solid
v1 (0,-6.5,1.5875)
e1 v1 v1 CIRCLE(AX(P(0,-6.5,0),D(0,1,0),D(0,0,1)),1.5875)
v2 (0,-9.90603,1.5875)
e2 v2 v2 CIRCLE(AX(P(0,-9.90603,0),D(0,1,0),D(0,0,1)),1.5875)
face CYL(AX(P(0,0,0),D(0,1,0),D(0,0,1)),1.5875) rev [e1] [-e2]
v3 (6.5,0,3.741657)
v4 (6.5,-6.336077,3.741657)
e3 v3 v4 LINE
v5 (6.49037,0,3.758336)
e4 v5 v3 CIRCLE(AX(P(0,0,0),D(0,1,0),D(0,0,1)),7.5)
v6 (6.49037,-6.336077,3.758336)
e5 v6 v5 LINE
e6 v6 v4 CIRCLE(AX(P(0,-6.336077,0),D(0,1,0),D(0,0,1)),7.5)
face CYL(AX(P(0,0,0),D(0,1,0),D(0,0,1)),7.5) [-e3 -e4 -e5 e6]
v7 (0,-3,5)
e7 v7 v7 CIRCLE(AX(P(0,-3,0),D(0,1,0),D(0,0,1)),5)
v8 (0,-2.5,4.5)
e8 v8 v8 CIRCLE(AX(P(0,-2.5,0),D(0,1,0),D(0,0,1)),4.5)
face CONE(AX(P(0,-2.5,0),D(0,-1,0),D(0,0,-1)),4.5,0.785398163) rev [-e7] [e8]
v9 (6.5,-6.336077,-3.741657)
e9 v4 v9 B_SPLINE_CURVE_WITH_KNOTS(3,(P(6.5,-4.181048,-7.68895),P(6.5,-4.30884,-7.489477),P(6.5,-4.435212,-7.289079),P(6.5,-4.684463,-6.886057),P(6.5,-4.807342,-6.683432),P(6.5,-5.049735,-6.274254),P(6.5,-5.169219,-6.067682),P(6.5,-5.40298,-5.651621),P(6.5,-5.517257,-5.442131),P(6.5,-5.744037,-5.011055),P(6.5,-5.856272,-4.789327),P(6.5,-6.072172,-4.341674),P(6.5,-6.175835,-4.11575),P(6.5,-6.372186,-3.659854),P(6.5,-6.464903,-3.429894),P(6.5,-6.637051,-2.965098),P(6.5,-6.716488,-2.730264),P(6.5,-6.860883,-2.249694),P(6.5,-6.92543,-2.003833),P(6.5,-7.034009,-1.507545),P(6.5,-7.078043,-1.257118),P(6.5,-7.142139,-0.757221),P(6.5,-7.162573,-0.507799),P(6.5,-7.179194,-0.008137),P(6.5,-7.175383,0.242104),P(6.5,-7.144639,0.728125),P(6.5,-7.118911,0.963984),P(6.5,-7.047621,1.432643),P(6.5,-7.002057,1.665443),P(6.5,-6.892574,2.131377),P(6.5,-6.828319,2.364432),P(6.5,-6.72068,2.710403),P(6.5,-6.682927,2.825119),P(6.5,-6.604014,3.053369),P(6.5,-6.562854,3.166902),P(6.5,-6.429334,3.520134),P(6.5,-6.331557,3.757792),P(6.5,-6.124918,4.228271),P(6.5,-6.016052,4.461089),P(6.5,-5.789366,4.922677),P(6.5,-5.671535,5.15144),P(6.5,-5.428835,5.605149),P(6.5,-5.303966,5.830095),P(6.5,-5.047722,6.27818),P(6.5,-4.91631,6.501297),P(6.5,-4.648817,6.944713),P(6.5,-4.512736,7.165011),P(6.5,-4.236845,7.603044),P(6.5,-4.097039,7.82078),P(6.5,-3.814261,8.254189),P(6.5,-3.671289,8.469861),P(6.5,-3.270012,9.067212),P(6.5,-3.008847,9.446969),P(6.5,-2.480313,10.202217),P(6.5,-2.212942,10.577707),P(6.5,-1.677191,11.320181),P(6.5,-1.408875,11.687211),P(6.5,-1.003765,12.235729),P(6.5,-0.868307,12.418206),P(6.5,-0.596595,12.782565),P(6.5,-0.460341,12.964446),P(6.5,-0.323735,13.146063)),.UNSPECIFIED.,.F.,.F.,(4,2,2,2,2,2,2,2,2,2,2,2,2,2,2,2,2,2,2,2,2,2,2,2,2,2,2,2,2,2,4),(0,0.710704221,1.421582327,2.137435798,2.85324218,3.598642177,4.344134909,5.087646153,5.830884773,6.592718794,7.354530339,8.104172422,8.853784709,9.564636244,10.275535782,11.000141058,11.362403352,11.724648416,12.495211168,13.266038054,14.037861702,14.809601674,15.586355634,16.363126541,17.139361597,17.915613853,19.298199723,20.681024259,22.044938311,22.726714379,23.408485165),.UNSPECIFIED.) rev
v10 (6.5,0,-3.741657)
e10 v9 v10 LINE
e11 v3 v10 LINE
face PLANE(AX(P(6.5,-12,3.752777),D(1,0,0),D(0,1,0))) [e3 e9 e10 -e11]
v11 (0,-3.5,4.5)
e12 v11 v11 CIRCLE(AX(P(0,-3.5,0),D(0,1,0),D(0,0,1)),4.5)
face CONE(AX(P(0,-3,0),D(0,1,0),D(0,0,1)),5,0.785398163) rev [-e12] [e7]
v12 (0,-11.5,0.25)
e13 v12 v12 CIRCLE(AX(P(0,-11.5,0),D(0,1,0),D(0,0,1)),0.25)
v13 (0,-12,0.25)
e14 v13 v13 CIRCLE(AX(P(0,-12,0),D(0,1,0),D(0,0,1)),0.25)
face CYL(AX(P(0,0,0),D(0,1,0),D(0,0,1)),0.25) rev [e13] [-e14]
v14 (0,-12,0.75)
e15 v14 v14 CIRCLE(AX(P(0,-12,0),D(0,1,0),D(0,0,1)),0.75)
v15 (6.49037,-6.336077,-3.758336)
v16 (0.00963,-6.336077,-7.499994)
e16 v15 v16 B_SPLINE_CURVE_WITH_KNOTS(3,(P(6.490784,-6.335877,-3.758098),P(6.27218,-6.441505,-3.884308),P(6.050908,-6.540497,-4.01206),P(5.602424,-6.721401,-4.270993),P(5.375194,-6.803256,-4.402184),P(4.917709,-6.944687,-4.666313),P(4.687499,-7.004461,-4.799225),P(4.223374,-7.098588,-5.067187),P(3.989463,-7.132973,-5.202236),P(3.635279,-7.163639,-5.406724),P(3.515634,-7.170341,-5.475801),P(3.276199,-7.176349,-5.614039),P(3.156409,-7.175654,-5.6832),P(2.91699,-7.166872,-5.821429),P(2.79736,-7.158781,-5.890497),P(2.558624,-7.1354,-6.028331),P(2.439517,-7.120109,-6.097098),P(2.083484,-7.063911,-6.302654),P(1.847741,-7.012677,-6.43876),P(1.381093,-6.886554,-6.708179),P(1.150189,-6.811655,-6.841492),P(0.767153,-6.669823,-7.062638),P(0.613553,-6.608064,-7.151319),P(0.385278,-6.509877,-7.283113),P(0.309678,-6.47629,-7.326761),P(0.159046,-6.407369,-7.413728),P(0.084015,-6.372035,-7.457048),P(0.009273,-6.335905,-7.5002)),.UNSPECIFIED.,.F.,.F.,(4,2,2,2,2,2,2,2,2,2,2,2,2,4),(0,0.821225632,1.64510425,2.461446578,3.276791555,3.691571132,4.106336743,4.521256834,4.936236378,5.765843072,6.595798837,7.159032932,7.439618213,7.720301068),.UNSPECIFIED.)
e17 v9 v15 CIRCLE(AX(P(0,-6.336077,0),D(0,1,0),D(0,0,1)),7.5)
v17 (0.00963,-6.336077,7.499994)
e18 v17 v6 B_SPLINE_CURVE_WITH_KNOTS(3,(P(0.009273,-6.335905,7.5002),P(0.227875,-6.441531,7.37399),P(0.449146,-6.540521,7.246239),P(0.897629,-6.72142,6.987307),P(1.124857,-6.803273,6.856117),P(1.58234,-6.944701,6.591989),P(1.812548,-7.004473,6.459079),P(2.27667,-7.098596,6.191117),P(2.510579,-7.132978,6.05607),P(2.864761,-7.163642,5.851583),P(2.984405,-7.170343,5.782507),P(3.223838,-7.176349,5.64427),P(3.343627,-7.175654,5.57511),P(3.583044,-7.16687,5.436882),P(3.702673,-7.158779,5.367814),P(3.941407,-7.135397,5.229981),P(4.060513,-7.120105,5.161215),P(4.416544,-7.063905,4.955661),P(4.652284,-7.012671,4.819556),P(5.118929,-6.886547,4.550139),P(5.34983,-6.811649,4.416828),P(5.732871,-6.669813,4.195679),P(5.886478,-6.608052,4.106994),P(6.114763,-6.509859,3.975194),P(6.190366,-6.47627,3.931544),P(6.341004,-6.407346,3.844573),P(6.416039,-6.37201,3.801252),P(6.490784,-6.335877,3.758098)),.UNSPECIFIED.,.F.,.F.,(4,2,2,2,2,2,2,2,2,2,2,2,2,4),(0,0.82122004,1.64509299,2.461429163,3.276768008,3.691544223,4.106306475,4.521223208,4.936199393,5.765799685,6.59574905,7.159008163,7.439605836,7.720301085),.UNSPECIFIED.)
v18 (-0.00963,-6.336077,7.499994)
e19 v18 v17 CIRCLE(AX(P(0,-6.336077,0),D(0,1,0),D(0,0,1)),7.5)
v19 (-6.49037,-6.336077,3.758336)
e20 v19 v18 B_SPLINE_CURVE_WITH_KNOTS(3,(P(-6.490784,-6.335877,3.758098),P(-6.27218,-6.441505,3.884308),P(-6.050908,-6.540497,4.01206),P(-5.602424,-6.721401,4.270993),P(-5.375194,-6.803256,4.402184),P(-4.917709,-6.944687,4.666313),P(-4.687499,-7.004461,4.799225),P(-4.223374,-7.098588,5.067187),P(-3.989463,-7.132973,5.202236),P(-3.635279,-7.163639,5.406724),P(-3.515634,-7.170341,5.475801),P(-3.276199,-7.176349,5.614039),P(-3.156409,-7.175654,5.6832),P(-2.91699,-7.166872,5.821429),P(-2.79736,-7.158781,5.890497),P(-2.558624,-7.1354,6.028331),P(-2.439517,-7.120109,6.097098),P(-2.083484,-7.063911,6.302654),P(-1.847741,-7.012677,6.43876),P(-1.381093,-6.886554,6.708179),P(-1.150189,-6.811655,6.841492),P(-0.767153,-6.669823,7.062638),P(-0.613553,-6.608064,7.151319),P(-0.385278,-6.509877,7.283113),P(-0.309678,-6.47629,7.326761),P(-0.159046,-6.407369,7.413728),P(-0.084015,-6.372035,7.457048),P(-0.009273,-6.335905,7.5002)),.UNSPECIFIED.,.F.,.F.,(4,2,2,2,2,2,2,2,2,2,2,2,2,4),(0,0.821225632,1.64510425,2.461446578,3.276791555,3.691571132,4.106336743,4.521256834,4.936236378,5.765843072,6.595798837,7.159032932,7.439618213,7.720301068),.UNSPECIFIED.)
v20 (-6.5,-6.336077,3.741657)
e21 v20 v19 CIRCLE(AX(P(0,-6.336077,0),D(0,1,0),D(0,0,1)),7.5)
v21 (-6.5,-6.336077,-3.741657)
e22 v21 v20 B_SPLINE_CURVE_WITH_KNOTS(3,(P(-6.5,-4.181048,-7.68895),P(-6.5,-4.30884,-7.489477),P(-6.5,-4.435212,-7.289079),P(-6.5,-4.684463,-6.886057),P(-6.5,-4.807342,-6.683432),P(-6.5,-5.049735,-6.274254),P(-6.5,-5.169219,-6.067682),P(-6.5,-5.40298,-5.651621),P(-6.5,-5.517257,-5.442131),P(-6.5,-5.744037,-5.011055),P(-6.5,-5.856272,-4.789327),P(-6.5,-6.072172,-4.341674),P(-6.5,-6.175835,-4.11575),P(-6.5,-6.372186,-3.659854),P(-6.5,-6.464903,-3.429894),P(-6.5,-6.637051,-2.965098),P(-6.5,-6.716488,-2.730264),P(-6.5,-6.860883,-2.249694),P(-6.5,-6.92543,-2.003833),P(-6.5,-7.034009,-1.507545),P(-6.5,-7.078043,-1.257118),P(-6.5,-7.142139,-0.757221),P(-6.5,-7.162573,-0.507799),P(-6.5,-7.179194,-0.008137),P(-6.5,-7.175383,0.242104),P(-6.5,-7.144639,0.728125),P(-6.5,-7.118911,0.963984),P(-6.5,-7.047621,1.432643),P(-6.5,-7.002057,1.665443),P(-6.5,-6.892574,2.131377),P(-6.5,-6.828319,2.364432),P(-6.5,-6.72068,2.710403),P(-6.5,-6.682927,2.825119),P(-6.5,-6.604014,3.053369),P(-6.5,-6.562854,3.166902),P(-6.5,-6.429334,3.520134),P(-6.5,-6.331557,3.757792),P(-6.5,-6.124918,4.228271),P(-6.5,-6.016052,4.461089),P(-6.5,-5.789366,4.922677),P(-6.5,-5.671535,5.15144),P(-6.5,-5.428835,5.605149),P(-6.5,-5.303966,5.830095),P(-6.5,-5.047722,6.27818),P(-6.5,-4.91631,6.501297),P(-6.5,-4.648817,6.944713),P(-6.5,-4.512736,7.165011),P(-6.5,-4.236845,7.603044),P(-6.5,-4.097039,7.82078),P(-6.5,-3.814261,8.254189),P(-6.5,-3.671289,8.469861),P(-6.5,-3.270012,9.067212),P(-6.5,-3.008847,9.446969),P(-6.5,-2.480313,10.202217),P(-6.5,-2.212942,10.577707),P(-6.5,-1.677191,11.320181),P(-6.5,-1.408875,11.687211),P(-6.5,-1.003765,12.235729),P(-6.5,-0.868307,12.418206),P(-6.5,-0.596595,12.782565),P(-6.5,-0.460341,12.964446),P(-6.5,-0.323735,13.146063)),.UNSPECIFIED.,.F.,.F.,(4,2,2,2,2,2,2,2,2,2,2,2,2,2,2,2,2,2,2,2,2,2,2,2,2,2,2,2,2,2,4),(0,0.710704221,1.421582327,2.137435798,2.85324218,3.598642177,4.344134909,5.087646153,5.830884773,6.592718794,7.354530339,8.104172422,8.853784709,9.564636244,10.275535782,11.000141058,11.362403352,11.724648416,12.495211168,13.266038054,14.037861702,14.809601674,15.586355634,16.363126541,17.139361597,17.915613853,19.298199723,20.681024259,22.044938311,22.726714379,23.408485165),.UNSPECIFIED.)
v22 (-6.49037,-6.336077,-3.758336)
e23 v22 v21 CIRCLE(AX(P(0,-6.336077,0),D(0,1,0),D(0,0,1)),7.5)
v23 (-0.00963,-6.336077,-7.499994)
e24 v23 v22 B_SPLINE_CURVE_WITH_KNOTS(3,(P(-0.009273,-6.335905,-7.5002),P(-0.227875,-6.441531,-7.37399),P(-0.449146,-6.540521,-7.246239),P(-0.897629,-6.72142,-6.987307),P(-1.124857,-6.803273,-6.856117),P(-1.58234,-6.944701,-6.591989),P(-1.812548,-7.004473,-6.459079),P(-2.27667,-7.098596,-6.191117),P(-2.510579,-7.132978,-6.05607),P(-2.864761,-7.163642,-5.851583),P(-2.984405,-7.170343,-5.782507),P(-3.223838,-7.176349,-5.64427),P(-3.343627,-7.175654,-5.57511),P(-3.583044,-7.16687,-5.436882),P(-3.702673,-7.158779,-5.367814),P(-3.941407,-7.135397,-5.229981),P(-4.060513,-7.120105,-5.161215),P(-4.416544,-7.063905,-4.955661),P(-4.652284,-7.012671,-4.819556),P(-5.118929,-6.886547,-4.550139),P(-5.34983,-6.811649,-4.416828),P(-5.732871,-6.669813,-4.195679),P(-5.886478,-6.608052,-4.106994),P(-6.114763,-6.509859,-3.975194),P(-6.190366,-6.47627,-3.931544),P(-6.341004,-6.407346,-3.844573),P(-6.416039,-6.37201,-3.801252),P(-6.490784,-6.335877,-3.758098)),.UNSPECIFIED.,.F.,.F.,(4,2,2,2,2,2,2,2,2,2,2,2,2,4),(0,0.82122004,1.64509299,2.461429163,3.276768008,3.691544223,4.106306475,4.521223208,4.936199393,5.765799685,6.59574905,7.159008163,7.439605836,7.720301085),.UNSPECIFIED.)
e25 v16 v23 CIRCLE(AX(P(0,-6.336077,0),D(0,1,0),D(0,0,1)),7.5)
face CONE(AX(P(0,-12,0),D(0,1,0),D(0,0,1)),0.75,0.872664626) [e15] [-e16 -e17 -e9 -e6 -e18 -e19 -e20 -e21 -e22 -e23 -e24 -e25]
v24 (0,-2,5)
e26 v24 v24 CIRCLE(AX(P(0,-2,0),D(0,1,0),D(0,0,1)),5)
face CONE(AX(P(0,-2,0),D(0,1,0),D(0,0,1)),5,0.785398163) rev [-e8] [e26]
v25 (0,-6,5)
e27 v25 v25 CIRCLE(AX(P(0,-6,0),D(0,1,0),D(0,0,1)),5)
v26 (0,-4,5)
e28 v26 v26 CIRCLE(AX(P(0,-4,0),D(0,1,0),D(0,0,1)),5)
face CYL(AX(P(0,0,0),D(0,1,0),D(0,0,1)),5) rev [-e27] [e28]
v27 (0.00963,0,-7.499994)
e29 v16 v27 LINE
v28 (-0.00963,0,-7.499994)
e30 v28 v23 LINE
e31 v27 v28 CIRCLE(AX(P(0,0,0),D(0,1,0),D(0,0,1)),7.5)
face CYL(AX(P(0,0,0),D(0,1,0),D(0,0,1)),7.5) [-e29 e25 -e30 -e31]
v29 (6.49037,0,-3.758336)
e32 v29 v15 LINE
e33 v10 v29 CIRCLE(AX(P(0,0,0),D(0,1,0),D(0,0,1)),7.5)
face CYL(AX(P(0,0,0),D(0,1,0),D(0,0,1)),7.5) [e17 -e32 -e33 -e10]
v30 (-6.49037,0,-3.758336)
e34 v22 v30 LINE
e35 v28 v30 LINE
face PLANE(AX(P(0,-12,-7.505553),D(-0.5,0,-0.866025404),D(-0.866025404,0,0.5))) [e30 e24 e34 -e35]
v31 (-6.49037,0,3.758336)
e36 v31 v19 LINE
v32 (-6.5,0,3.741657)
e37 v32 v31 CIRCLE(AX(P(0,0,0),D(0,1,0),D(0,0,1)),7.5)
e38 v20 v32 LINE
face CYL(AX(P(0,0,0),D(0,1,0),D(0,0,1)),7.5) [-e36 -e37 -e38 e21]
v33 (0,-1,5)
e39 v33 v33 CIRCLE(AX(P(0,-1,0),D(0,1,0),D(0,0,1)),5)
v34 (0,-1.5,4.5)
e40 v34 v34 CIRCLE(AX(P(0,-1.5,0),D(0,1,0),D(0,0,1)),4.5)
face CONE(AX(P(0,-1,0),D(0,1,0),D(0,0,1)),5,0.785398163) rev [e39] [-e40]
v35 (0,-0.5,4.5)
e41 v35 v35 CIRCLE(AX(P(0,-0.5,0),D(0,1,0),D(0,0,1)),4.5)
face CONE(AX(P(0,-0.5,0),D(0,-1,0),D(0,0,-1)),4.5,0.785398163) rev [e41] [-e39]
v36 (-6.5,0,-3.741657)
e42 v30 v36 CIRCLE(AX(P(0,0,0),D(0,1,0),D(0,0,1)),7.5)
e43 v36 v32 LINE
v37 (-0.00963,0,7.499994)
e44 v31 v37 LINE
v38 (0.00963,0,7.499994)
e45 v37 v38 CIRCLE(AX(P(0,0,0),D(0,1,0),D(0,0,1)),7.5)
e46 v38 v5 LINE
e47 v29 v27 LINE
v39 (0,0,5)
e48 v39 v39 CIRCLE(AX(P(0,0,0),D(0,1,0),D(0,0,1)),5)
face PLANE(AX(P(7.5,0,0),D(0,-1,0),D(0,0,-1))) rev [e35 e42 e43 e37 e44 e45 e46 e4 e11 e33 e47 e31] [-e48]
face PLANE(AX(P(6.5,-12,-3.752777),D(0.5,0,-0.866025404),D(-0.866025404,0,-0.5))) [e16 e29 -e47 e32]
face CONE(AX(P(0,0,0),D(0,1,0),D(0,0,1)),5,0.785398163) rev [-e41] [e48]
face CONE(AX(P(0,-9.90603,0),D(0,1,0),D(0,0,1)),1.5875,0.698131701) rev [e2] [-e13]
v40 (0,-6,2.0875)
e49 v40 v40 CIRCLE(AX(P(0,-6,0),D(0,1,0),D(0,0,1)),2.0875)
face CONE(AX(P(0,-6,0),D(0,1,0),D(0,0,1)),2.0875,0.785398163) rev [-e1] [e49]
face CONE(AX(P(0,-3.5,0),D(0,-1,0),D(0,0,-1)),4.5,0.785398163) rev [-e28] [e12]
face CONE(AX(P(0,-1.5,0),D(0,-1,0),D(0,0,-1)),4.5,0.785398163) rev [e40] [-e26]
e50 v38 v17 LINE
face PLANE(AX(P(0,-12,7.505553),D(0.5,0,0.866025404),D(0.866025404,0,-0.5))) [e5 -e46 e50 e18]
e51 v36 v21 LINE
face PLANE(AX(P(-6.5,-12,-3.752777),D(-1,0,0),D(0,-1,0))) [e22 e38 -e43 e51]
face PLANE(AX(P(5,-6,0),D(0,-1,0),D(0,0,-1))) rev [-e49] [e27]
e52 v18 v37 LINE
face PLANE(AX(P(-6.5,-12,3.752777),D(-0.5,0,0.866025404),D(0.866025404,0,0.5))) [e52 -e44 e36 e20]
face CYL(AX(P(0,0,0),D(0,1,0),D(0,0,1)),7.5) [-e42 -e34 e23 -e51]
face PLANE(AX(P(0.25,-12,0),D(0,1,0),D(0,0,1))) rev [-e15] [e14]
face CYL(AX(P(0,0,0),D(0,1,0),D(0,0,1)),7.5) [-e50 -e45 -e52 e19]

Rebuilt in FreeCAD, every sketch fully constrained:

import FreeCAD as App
import Part
import Sketcher
from FreeCAD import Vector
Q = App.Units.Quantity

doc = App.newDocument("Part")
body = doc.addObject("PartDesign::Body", "Body")

# Sketch on XY plane
sketch1 = doc.addObject("Sketcher::SketchObject", "Sketch")
body.addObject(sketch1)
sketch1.AttachmentSupport = (doc.XY_Plane, [""])
sketch1.MapMode = "FlatFace"
sketch1.addGeometry(Part.LineSegment(Vector(0.25, -12, 0), Vector(0.75, -12, 0)), False)
sketch1.addGeometry(Part.LineSegment(Vector(0.75, -12, 0), Vector(7.5, -6.336077, 0)), False)
sketch1.addGeometry(Part.LineSegment(Vector(7.5, -6.336077, 0), Vector(7.5, 0, 0)), False)
sketch1.addGeometry(Part.LineSegment(Vector(7.5, 0, 0), Vector(5, 0, 0)), False)
sketch1.addGeometry(Part.LineSegment(Vector(5, 0, 0), Vector(4.5, -0.5, 0)), False)
sketch1.addGeometry(Part.LineSegment(Vector(4.5, -0.5, 0), Vector(5, -1, 0)), False)
sketch1.addGeometry(Part.LineSegment(Vector(5, -1, 0), Vector(4.5, -1.5, 0)), False)
sketch1.addGeometry(Part.LineSegment(Vector(4.5, -1.5, 0), Vector(5, -2, 0)), False)
sketch1.addGeometry(Part.LineSegment(Vector(5, -2, 0), Vector(4.5, -2.5, 0)), False)
sketch1.addGeometry(Part.LineSegment(Vector(4.5, -2.5, 0), Vector(5, -3, 0)), False)
sketch1.addGeometry(Part.LineSegment(Vector(5, -3, 0), Vector(4.5, -3.5, 0)), False)
sketch1.addGeometry(Part.LineSegment(Vector(4.5, -3.5, 0), Vector(5, -4, 0)), False)
sketch1.addGeometry(Part.LineSegment(Vector(5, -4, 0), Vector(5, -6, 0)), False)
sketch1.addGeometry(Part.LineSegment(Vector(5, -6, 0), Vector(2.0875, -6, 0)), False)
sketch1.addGeometry(Part.LineSegment(Vector(2.0875, -6, 0), Vector(1.5875, -6.5, 0)), False)
sketch1.addGeometry(Part.LineSegment(Vector(1.5875, -6.5, 0), Vector(1.5875, -9.90603, 0)), False)
sketch1.addGeometry(Part.LineSegment(Vector(1.5875, -9.90603, 0), Vector(0.25, -11.5, 0)), False)
sketch1.addGeometry(Part.LineSegment(Vector(0.25, -11.5, 0), Vector(0.25, -12, 0)), False)
sketch1.addConstraint(Sketcher.Constraint("Coincident", 0, 2, 1, 1))
sketch1.addConstraint(Sketcher.Constraint("Coincident", 1, 2, 2, 1))
sketch1.addConstraint(Sketcher.Constraint("Coincident", 2, 2, 3, 1))
sketch1.addConstraint(Sketcher.Constraint("Coincident", 3, 2, 4, 1))
sketch1.addConstraint(Sketcher.Constraint("Coincident", 4, 2, 5, 1))
sketch1.addConstraint(Sketcher.Constraint("Coincident", 5, 2, 6, 1))
sketch1.addConstraint(Sketcher.Constraint("Coincident", 6, 2, 7, 1))
sketch1.addConstraint(Sketcher.Constraint("Coincident", 7, 2, 8, 1))
sketch1.addConstraint(Sketcher.Constraint("Coincident", 8, 2, 9, 1))
sketch1.addConstraint(Sketcher.Constraint("Coincident", 9, 2, 10, 1))
sketch1.addConstraint(Sketcher.Constraint("Coincident", 10, 2, 11, 1))
sketch1.addConstraint(Sketcher.Constraint("Coincident", 11, 2, 12, 1))
sketch1.addConstraint(Sketcher.Constraint("Coincident", 12, 2, 13, 1))
sketch1.addConstraint(Sketcher.Constraint("Coincident", 13, 2, 14, 1))
sketch1.addConstraint(Sketcher.Constraint("Coincident", 14, 2, 15, 1))
sketch1.addConstraint(Sketcher.Constraint("Coincident", 15, 2, 16, 1))
sketch1.addConstraint(Sketcher.Constraint("Coincident", 16, 2, 17, 1))
sketch1.addConstraint(Sketcher.Constraint("Coincident", 17, 2, 0, 1))
sketch1.addConstraint(Sketcher.Constraint("Horizontal", 0))
sketch1.addConstraint(Sketcher.Constraint("Vertical", 2))
sketch1.addConstraint(Sketcher.Constraint("Horizontal", 3))
sketch1.addConstraint(Sketcher.Constraint("Vertical", 12))
sketch1.addConstraint(Sketcher.Constraint("Horizontal", 13))
sketch1.addConstraint(Sketcher.Constraint("Vertical", 15))
sketch1.addConstraint(Sketcher.Constraint("Vertical", 17))
sketch1.addConstraint(Sketcher.Constraint("PointOnObject", 2, 2, -1))
sketch1.addConstraint(Sketcher.Constraint("Perpendicular", 4, 5))
sketch1.addConstraint(Sketcher.Constraint("Perpendicular", 5, 6))
sketch1.addConstraint(Sketcher.Constraint("Perpendicular", 6, 7))
sketch1.addConstraint(Sketcher.Constraint("Perpendicular", 7, 8))
sketch1.addConstraint(Sketcher.Constraint("Perpendicular", 8, 9))
sketch1.addConstraint(Sketcher.Constraint("Perpendicular", 9, 10))
sketch1.addConstraint(Sketcher.Constraint("Perpendicular", 10, 11))
sketch1.addConstraint(Sketcher.Constraint("Perpendicular", 11, 14))
sketch1.addConstraint(Sketcher.Constraint("Vertical", 3, 2, 5, 2))
sketch1.addConstraint(Sketcher.Constraint("Vertical", 4, 2, 6, 2))
sketch1.addConstraint(Sketcher.Constraint("Vertical", 5, 2, 7, 2))
sketch1.addConstraint(Sketcher.Constraint("Vertical", 6, 2, 8, 2))
sketch1.addConstraint(Sketcher.Constraint("Vertical", 7, 2, 9, 2))
sketch1.addConstraint(Sketcher.Constraint("Vertical", 8, 2, 10, 2))
sketch1.addConstraint(Sketcher.Constraint("Vertical", 9, 2, 11, 2))
sketch1.addConstraint(Sketcher.Constraint("Equal", 0, 17))
sketch1.addConstraint(Sketcher.Constraint("Equal", 4, 5))
sketch1.addConstraint(Sketcher.Constraint("Equal", 11, 14))
sketch1.addConstraint(Sketcher.Constraint("DistanceY", 12, 2, 12, 1, 2.0))
sketch1.addConstraint(Sketcher.Constraint("Angle", 1, Q("40 deg")))
sketch1.addConstraint(Sketcher.Constraint("Angle", 16, Q("-130 deg")))
sketch1.addConstraint(Sketcher.Constraint("DistanceX", 0, 1, 0, 2, 0.5))
sketch1.addConstraint(Sketcher.Constraint("DistanceX", 3, 2, 3, 1, 2.5))
sketch1.addConstraint(Sketcher.Constraint("DistanceY", 0, 2, -1, 1, 12.0))
sketch1.addConstraint(Sketcher.Constraint("DistanceX", -1, 1, 3, 2, 5.0))
sketch1.addConstraint(Sketcher.Constraint("DistanceY", 5, 2, -1, 1, 1.0))
sketch1.addConstraint(Sketcher.Constraint("DistanceX", -1, 1, 0, 2, 0.75))
sketch1.addConstraint(Sketcher.Constraint("DistanceX", 13, 2, 13, 1, 2.9125))
revolution = doc.addObject("PartDesign::Revolution", "Revolution")
body.addObject(revolution)
revolution.Profile = sketch1
revolution.ReferenceAxis = (sketch1, ["V_Axis"])
revolution.Angle = 360

# Sketch on XZ plane
sketch2 = doc.addObject("Sketcher::SketchObject", "Sketch001")
body.addObject(sketch2)
sketch2.AttachmentSupport = (doc.XZ_Plane, [""])
sketch2.MapMode = "FlatFace"
sketch2.addGeometry(Part.LineSegment(Vector(-10.937, -10.937, 0), Vector(-10.937, 10.937, 0)), False)
sketch2.addGeometry(Part.LineSegment(Vector(-10.937, 10.937, 0), Vector(10.937, 10.937, 0)), False)
sketch2.addGeometry(Part.LineSegment(Vector(10.937, 10.937, 0), Vector(10.937, -10.937, 0)), False)
sketch2.addGeometry(Part.LineSegment(Vector(10.937, -10.937, 0), Vector(-10.937, -10.937, 0)), False)
sketch2.addGeometry(Part.LineSegment(Vector(-6.5, -3.752777, 0), Vector(0, -7.505553, 0)), False)
sketch2.addGeometry(Part.LineSegment(Vector(0, -7.505553, 0), Vector(6.5, -3.752777, 0)), False)
sketch2.addGeometry(Part.LineSegment(Vector(6.5, -3.752777, 0), Vector(6.5, 3.752777, 0)), False)
sketch2.addGeometry(Part.LineSegment(Vector(6.5, 3.752777, 0), Vector(0, 7.505553, 0)), False)
sketch2.addGeometry(Part.LineSegment(Vector(0, 7.505553, 0), Vector(-6.5, 3.752777, 0)), False)
sketch2.addGeometry(Part.LineSegment(Vector(-6.5, 3.752777, 0), Vector(-6.5, -3.752777, 0)), False)
sketch2.addConstraint(Sketcher.Constraint("Coincident", 0, 2, 1, 1))
sketch2.addConstraint(Sketcher.Constraint("Coincident", 1, 2, 2, 1))
sketch2.addConstraint(Sketcher.Constraint("Coincident", 2, 2, 3, 1))
sketch2.addConstraint(Sketcher.Constraint("Coincident", 3, 2, 0, 1))
sketch2.addConstraint(Sketcher.Constraint("Coincident", 4, 2, 5, 1))
sketch2.addConstraint(Sketcher.Constraint("Coincident", 5, 2, 6, 1))
sketch2.addConstraint(Sketcher.Constraint("Coincident", 6, 2, 7, 1))
sketch2.addConstraint(Sketcher.Constraint("Coincident", 7, 2, 8, 1))
sketch2.addConstraint(Sketcher.Constraint("Coincident", 8, 2, 9, 1))
sketch2.addConstraint(Sketcher.Constraint("Coincident", 9, 2, 4, 1))
sketch2.addConstraint(Sketcher.Constraint("Vertical", 0))
sketch2.addConstraint(Sketcher.Constraint("Horizontal", 1))
sketch2.addConstraint(Sketcher.Constraint("Vertical", 2))
sketch2.addConstraint(Sketcher.Constraint("Horizontal", 3))
sketch2.addConstraint(Sketcher.Constraint("Vertical", 6))
sketch2.addConstraint(Sketcher.Constraint("Vertical", 9))
sketch2.addConstraint(Sketcher.Constraint("Symmetric", 0, 2, 2, 2, -1, 1))
sketch2.addConstraint(Sketcher.Constraint("Symmetric", 4, 2, 7, 2, -1, 1))
sketch2.addConstraint(Sketcher.Constraint("Symmetric", 5, 2, 8, 2, -1, 1))
sketch2.addConstraint(Sketcher.Constraint("PointOnObject", 4, 2, -2))
sketch2.addConstraint(Sketcher.Constraint("Parallel", 4, 7))
sketch2.addConstraint(Sketcher.Constraint("Horizontal", 6, 2, 8, 2))
sketch2.addConstraint(Sketcher.Constraint("Equal", 3, 0))
sketch2.addConstraint(Sketcher.Constraint("Angle", 4, Q("-30 deg")))
sketch2.addConstraint(Sketcher.Constraint("DistanceX", 8, 2, 6, 2, 13.0))
sketch2.addConstraint(Sketcher.Constraint("DistanceX", 1, 1, 1, 2, 21.874))
sketch2.addConstraint(Sketcher.Constraint("DistanceY", 6, 1, 6, 2, 7.505554))
pocket1 = doc.addObject("PartDesign::Pocket", "Pocket")
body.addObject(pocket1)
pocket1.Profile = sketch2
pocket1.Type = "ThroughAll"
pocket1.Reversed = True

doc.recompute()
